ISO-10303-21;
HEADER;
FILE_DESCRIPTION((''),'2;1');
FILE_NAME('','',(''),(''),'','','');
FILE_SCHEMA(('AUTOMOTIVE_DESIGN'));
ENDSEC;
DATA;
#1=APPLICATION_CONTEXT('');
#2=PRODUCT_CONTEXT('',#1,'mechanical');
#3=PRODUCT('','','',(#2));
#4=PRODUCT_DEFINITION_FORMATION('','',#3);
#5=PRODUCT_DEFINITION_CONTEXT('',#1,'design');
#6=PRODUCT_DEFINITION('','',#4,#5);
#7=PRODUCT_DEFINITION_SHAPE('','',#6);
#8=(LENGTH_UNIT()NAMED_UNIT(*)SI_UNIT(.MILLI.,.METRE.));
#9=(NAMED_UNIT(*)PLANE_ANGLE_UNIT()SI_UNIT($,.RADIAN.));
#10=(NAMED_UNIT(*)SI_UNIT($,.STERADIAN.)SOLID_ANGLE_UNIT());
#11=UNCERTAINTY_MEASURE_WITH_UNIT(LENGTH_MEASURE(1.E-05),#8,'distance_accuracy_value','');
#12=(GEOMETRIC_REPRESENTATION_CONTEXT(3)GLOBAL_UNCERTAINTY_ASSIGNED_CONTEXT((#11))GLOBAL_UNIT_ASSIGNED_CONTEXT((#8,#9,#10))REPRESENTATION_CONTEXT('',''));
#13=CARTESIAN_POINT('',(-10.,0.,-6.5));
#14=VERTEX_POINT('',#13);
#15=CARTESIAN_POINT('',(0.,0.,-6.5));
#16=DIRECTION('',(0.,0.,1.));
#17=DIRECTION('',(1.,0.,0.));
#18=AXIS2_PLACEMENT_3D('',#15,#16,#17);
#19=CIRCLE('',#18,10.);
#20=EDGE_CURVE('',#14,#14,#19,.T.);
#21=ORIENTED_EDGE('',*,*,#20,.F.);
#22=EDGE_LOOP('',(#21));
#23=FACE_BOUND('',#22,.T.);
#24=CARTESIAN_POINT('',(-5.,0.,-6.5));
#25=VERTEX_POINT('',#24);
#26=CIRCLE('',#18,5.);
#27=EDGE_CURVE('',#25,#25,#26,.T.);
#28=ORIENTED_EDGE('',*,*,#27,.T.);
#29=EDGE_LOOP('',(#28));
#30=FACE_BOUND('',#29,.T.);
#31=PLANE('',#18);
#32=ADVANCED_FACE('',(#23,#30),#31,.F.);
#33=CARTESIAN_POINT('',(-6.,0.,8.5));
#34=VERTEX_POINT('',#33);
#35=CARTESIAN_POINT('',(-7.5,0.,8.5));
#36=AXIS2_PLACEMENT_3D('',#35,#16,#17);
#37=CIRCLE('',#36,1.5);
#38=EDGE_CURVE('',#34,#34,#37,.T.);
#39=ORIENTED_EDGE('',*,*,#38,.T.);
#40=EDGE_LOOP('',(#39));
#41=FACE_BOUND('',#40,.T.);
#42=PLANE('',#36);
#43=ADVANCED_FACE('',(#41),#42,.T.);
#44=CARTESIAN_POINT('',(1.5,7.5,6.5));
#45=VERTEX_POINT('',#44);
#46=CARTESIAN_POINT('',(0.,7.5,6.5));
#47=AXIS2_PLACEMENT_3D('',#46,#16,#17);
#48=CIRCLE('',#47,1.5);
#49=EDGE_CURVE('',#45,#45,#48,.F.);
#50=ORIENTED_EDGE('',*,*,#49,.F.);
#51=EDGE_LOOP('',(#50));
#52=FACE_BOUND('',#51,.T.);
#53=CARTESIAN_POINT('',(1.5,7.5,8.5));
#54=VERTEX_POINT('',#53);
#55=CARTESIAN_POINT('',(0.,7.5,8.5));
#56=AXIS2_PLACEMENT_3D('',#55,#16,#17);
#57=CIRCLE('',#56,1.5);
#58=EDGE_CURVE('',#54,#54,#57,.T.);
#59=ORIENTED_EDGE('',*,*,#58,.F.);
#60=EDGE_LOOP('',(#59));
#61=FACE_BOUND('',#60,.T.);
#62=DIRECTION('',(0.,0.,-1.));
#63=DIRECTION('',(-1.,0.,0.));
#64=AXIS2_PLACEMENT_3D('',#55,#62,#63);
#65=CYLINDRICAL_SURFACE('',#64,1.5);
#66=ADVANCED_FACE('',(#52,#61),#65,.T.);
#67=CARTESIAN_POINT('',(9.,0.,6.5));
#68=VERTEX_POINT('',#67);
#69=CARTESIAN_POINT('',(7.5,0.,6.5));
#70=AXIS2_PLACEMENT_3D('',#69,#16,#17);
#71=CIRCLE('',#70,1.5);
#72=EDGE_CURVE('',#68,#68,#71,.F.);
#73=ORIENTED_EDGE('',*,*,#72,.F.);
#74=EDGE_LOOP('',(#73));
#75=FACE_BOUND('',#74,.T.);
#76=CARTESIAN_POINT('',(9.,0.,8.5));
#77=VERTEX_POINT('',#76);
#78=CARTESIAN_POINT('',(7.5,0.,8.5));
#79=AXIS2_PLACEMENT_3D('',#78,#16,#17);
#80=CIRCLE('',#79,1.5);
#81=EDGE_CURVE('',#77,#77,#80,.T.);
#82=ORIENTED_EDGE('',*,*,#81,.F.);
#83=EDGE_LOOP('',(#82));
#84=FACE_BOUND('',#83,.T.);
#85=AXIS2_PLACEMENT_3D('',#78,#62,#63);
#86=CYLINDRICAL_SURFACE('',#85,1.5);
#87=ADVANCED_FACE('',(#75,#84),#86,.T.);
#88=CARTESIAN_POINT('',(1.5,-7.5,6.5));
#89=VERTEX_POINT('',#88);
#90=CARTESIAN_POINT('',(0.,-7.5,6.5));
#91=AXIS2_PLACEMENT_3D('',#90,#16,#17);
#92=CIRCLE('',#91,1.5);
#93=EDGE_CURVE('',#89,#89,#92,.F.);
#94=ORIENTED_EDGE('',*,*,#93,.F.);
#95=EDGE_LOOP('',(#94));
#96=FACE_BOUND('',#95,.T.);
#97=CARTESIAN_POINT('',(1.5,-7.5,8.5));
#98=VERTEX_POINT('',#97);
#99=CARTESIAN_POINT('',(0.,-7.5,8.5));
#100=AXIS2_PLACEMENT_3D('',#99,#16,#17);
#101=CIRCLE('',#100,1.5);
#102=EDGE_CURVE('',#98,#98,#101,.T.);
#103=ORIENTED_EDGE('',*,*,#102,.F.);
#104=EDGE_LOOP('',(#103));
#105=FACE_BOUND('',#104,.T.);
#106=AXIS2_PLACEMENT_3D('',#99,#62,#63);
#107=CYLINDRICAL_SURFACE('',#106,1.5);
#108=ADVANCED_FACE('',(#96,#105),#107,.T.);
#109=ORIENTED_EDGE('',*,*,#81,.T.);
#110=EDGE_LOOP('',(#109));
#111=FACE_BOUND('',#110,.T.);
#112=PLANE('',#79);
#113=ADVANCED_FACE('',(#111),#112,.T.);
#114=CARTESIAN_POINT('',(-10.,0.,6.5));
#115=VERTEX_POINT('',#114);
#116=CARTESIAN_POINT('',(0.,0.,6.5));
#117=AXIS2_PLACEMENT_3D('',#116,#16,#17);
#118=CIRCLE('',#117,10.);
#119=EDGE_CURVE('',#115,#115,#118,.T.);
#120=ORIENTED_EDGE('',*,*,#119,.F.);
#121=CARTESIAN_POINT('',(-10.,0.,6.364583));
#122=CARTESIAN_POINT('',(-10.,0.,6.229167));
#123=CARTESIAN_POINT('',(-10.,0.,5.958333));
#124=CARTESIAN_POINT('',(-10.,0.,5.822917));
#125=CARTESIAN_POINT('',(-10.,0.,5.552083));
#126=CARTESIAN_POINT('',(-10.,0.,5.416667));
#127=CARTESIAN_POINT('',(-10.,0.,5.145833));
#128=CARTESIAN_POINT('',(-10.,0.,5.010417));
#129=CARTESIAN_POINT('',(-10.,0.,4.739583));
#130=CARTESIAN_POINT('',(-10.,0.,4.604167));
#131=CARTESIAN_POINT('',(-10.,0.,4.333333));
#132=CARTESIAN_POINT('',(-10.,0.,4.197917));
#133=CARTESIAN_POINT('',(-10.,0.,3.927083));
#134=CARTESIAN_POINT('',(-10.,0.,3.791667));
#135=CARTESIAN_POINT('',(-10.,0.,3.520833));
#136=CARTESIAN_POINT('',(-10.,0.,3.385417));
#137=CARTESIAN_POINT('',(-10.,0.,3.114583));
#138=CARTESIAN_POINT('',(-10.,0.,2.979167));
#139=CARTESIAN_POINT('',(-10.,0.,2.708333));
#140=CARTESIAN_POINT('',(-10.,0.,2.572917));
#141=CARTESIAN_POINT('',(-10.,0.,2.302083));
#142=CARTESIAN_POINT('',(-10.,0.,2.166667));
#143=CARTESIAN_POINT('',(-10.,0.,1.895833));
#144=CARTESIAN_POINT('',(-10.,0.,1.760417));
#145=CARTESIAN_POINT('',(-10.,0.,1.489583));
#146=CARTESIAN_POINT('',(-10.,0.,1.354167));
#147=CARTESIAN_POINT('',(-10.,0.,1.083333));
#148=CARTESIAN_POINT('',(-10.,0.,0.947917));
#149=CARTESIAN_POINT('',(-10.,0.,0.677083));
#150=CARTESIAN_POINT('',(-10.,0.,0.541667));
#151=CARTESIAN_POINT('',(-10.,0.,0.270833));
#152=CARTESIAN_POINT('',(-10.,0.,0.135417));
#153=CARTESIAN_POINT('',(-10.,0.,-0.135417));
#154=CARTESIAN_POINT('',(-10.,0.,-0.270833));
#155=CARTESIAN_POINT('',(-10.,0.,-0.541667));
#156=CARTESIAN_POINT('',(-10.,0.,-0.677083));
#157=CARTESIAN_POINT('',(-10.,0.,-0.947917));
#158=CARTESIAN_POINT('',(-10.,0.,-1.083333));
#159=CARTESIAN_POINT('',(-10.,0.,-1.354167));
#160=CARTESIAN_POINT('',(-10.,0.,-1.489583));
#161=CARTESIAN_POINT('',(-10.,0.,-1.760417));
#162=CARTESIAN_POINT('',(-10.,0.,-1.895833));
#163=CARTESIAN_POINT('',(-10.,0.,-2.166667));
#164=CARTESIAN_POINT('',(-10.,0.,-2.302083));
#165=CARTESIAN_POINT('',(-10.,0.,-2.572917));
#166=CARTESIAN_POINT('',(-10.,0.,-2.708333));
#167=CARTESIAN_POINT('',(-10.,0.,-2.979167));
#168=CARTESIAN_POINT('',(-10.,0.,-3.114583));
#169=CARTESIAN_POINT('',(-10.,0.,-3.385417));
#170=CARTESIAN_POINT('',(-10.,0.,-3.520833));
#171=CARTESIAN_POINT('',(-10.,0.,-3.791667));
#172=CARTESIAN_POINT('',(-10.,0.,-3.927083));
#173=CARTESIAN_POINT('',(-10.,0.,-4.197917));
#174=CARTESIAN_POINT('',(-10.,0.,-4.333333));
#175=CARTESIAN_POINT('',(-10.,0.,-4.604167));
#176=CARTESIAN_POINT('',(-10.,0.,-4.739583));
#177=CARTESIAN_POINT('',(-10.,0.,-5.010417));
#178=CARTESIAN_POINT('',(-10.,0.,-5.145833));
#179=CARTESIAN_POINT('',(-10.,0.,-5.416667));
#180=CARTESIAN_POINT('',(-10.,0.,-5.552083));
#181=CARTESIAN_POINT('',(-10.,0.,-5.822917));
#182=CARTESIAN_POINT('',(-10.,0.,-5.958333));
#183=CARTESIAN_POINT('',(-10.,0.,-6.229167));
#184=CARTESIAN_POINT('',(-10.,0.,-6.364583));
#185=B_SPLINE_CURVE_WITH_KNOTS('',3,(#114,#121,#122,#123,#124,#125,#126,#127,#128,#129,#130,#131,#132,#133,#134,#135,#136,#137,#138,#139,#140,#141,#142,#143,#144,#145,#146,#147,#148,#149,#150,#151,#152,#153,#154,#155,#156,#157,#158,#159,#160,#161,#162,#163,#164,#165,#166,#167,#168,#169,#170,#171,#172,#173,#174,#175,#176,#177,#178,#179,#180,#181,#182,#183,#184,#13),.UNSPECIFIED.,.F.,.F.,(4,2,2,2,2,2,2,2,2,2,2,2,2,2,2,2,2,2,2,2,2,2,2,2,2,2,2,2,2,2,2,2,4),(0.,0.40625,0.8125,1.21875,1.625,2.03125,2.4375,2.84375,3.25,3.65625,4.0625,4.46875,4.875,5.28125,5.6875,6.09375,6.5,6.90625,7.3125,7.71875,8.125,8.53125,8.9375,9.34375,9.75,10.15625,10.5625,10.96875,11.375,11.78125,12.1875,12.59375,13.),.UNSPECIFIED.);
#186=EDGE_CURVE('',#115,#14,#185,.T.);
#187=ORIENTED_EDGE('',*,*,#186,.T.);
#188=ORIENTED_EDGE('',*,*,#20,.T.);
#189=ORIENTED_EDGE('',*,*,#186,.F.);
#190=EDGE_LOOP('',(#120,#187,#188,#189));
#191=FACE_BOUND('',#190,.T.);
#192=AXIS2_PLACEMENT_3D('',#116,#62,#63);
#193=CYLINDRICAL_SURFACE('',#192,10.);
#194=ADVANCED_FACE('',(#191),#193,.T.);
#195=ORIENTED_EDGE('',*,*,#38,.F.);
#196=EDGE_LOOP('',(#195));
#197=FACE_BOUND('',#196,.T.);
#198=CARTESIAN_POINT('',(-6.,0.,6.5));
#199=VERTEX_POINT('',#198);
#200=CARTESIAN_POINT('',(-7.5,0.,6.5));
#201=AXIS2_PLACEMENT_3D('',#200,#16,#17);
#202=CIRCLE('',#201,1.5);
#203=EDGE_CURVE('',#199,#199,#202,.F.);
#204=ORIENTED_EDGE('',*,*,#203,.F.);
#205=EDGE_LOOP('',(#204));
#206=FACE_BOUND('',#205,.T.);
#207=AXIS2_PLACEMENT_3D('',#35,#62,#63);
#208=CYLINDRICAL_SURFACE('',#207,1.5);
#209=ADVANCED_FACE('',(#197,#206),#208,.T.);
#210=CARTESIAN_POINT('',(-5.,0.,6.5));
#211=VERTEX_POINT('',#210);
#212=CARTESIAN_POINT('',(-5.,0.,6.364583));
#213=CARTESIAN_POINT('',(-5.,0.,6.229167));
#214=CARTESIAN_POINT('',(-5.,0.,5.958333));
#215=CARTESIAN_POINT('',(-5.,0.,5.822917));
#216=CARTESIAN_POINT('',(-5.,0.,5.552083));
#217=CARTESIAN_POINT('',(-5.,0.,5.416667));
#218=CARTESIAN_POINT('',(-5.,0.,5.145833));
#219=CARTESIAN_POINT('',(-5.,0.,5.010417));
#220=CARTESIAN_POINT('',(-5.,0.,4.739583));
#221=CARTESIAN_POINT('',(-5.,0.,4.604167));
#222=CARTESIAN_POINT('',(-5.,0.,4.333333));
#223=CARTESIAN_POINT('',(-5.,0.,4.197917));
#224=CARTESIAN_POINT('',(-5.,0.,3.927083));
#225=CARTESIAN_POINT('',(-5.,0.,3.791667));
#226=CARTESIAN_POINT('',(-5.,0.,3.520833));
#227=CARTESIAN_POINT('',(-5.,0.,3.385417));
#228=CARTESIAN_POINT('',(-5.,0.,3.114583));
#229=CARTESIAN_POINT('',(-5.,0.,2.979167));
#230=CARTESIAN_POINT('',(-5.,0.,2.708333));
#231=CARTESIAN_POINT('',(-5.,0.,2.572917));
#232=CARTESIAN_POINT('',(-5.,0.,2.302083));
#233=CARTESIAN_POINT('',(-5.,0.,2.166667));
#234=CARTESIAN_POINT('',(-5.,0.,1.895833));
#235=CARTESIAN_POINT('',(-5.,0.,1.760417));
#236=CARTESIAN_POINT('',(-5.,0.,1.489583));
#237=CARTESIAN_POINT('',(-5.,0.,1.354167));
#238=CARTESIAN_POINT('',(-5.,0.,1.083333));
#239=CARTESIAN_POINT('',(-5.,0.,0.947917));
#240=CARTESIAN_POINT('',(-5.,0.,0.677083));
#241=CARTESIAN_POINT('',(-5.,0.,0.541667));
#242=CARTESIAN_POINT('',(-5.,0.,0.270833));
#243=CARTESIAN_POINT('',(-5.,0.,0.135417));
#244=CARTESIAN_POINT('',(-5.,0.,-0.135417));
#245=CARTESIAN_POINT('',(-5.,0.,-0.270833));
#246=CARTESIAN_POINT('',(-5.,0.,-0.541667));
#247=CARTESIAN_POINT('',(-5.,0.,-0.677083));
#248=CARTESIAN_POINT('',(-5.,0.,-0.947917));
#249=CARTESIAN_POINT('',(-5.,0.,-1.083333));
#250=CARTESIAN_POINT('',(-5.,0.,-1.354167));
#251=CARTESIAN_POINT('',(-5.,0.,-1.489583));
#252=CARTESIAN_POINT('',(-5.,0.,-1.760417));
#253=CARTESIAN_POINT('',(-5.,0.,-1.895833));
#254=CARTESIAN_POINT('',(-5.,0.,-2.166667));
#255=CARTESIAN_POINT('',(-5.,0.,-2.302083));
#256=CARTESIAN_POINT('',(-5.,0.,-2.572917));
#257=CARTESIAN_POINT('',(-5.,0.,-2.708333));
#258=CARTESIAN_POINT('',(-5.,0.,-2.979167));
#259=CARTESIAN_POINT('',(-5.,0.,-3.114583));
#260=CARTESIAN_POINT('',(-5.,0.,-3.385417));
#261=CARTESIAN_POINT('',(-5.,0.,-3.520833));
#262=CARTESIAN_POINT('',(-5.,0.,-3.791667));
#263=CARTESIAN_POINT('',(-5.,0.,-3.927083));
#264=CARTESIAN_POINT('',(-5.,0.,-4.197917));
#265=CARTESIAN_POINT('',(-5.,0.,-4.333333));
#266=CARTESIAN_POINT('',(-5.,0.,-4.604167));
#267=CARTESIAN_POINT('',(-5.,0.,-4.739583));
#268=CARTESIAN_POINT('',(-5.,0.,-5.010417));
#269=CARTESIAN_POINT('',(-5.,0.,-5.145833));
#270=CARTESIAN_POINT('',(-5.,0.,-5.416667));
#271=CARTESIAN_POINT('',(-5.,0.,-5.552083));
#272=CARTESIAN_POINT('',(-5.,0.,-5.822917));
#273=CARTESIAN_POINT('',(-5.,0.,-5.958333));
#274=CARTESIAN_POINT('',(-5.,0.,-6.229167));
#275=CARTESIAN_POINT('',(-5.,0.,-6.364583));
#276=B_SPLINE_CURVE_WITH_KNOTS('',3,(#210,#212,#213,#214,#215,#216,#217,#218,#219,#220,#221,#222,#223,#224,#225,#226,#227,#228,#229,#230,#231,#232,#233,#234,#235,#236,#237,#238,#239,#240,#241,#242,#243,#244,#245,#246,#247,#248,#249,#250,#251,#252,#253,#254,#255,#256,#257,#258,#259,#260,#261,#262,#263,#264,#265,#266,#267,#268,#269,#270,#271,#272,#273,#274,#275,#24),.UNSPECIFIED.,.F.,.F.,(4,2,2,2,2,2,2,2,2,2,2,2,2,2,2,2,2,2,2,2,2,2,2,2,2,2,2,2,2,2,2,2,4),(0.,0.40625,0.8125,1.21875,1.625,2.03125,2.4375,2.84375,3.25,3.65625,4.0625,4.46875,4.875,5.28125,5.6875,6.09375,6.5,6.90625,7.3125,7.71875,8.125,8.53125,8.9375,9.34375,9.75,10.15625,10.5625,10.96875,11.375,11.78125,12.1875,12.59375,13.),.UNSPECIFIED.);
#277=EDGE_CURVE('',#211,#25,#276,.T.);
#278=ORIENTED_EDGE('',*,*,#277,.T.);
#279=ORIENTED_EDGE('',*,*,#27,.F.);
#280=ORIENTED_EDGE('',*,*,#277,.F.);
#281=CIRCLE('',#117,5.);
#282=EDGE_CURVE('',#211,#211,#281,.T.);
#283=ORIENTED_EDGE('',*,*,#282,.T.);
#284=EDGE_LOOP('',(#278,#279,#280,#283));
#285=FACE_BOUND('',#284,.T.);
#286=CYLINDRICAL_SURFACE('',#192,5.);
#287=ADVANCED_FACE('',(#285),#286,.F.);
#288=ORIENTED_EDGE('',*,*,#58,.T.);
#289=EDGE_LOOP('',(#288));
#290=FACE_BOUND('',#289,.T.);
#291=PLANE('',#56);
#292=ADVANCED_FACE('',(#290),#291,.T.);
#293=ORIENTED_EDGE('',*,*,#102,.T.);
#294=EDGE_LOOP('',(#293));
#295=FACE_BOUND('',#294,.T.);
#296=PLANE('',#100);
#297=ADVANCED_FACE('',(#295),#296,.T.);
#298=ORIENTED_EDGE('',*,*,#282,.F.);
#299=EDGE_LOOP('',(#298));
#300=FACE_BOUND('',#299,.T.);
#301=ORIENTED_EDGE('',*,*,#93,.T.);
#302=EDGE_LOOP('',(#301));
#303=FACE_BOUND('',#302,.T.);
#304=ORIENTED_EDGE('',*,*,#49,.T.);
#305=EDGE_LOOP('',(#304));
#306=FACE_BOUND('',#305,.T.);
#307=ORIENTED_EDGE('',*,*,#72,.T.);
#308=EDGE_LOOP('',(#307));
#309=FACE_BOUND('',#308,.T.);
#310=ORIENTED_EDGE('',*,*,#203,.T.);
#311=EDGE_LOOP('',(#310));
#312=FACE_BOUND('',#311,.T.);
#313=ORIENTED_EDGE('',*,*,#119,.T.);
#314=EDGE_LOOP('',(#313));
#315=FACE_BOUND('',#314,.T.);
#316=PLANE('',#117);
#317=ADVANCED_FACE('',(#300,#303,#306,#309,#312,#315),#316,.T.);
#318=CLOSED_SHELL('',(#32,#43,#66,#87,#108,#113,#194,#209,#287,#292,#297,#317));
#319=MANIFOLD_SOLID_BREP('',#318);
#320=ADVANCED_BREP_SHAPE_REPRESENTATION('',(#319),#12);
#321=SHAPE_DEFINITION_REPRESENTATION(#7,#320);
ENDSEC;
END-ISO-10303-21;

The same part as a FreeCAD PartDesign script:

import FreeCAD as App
import Part
import Sketcher

doc = App.newDocument("Part")
body = doc.addObject("PartDesign::Body", "Body")

# Sketch on XY plane
sketch1 = body.newObject("Sketcher::SketchObject", "Sketch")
sketch1.AttachmentSupport = (doc.getObject("XY_Plane"), [""])
sketch1.MapMode = "FlatFace"
sketch1.addGeometry(Part.Circle(App.Vector(0, 0, 0), App.Vector(0, 0, 1), 10), False)
sketch1.addGeometry(Part.Circle(App.Vector(0, 0, 0), App.Vector(0, 0, 1), 5), False)
sketch1.addConstraint(Sketcher.Constraint("Coincident", 0, 3, -1, 1))
sketch1.addConstraint(Sketcher.Constraint("Coincident", 1, 3, -1, 1))
sketch1.addConstraint(Sketcher.Constraint("Diameter", 0, 20.0))
sketch1.addConstraint(Sketcher.Constraint("Diameter", 1, 10.0))
pad1 = body.newObject("PartDesign::Pad", "Pad")
pad1.Profile = sketch1
pad1.Length = 13
pad1.Midplane = True

# Sketch on XY plane
sketch2 = body.newObject("Sketcher::SketchObject", "Sketch001")
sketch2.AttachmentSupport = (doc.getObject("XY_Plane"), [""])
sketch2.MapMode = "FlatFace"
sketch2.AttachmentOffset = App.Placement(App.Vector(0, 0, 6.5), App.Rotation())
sketch2.addGeometry(Part.Circle(App.Vector(0, 7.5, 0), App.Vector(0, 0, 1), 1.5), False)
sketch2.addGeometry(Part.Circle(App.Vector(7.5, 0, 0), App.Vector(0, 0, 1), 1.5), False)
sketch2.addGeometry(Part.Circle(App.Vector(0, -7.5, 0), App.Vector(0, 0, 1), 1.5), False)
sketch2.addGeometry(Part.Circle(App.Vector(-7.5, 0, 0), App.Vector(0, 0, 1), 1.5), False)
sketch2.addConstraint(Sketcher.Constraint("Equal", 0, 1))
sketch2.addConstraint(Sketcher.Constraint("Equal", 1, 2))
sketch2.addConstraint(Sketcher.Constraint("Equal", 2, 3))
sketch2.addConstraint(Sketcher.Constraint("Symmetric", 0, 3, 2, 3, -1, 1))
sketch2.addConstraint(Sketcher.Constraint("Symmetric", 1, 3, 3, 3, -1, 1))
sketch2.addConstraint(Sketcher.Constraint("PointOnObject", 0, 3, -2))
sketch2.addConstraint(Sketcher.Constraint("PointOnObject", 1, 3, -1))
sketch2.addConstraint(Sketcher.Constraint("Diameter", 0, 3.0))
sketch2.addConstraint(Sketcher.Constraint("DistanceY", 2, 3, 0, 3, 15.0))
sketch2.addConstraint(Sketcher.Constraint("DistanceX", 3, 3, 1, 3, 15.0))
pad2 = body.newObject("PartDesign::Pad", "Pad001")
pad2.Profile = sketch2
pad2.Length = 4
pad2.Midplane = True

doc.recompute()
